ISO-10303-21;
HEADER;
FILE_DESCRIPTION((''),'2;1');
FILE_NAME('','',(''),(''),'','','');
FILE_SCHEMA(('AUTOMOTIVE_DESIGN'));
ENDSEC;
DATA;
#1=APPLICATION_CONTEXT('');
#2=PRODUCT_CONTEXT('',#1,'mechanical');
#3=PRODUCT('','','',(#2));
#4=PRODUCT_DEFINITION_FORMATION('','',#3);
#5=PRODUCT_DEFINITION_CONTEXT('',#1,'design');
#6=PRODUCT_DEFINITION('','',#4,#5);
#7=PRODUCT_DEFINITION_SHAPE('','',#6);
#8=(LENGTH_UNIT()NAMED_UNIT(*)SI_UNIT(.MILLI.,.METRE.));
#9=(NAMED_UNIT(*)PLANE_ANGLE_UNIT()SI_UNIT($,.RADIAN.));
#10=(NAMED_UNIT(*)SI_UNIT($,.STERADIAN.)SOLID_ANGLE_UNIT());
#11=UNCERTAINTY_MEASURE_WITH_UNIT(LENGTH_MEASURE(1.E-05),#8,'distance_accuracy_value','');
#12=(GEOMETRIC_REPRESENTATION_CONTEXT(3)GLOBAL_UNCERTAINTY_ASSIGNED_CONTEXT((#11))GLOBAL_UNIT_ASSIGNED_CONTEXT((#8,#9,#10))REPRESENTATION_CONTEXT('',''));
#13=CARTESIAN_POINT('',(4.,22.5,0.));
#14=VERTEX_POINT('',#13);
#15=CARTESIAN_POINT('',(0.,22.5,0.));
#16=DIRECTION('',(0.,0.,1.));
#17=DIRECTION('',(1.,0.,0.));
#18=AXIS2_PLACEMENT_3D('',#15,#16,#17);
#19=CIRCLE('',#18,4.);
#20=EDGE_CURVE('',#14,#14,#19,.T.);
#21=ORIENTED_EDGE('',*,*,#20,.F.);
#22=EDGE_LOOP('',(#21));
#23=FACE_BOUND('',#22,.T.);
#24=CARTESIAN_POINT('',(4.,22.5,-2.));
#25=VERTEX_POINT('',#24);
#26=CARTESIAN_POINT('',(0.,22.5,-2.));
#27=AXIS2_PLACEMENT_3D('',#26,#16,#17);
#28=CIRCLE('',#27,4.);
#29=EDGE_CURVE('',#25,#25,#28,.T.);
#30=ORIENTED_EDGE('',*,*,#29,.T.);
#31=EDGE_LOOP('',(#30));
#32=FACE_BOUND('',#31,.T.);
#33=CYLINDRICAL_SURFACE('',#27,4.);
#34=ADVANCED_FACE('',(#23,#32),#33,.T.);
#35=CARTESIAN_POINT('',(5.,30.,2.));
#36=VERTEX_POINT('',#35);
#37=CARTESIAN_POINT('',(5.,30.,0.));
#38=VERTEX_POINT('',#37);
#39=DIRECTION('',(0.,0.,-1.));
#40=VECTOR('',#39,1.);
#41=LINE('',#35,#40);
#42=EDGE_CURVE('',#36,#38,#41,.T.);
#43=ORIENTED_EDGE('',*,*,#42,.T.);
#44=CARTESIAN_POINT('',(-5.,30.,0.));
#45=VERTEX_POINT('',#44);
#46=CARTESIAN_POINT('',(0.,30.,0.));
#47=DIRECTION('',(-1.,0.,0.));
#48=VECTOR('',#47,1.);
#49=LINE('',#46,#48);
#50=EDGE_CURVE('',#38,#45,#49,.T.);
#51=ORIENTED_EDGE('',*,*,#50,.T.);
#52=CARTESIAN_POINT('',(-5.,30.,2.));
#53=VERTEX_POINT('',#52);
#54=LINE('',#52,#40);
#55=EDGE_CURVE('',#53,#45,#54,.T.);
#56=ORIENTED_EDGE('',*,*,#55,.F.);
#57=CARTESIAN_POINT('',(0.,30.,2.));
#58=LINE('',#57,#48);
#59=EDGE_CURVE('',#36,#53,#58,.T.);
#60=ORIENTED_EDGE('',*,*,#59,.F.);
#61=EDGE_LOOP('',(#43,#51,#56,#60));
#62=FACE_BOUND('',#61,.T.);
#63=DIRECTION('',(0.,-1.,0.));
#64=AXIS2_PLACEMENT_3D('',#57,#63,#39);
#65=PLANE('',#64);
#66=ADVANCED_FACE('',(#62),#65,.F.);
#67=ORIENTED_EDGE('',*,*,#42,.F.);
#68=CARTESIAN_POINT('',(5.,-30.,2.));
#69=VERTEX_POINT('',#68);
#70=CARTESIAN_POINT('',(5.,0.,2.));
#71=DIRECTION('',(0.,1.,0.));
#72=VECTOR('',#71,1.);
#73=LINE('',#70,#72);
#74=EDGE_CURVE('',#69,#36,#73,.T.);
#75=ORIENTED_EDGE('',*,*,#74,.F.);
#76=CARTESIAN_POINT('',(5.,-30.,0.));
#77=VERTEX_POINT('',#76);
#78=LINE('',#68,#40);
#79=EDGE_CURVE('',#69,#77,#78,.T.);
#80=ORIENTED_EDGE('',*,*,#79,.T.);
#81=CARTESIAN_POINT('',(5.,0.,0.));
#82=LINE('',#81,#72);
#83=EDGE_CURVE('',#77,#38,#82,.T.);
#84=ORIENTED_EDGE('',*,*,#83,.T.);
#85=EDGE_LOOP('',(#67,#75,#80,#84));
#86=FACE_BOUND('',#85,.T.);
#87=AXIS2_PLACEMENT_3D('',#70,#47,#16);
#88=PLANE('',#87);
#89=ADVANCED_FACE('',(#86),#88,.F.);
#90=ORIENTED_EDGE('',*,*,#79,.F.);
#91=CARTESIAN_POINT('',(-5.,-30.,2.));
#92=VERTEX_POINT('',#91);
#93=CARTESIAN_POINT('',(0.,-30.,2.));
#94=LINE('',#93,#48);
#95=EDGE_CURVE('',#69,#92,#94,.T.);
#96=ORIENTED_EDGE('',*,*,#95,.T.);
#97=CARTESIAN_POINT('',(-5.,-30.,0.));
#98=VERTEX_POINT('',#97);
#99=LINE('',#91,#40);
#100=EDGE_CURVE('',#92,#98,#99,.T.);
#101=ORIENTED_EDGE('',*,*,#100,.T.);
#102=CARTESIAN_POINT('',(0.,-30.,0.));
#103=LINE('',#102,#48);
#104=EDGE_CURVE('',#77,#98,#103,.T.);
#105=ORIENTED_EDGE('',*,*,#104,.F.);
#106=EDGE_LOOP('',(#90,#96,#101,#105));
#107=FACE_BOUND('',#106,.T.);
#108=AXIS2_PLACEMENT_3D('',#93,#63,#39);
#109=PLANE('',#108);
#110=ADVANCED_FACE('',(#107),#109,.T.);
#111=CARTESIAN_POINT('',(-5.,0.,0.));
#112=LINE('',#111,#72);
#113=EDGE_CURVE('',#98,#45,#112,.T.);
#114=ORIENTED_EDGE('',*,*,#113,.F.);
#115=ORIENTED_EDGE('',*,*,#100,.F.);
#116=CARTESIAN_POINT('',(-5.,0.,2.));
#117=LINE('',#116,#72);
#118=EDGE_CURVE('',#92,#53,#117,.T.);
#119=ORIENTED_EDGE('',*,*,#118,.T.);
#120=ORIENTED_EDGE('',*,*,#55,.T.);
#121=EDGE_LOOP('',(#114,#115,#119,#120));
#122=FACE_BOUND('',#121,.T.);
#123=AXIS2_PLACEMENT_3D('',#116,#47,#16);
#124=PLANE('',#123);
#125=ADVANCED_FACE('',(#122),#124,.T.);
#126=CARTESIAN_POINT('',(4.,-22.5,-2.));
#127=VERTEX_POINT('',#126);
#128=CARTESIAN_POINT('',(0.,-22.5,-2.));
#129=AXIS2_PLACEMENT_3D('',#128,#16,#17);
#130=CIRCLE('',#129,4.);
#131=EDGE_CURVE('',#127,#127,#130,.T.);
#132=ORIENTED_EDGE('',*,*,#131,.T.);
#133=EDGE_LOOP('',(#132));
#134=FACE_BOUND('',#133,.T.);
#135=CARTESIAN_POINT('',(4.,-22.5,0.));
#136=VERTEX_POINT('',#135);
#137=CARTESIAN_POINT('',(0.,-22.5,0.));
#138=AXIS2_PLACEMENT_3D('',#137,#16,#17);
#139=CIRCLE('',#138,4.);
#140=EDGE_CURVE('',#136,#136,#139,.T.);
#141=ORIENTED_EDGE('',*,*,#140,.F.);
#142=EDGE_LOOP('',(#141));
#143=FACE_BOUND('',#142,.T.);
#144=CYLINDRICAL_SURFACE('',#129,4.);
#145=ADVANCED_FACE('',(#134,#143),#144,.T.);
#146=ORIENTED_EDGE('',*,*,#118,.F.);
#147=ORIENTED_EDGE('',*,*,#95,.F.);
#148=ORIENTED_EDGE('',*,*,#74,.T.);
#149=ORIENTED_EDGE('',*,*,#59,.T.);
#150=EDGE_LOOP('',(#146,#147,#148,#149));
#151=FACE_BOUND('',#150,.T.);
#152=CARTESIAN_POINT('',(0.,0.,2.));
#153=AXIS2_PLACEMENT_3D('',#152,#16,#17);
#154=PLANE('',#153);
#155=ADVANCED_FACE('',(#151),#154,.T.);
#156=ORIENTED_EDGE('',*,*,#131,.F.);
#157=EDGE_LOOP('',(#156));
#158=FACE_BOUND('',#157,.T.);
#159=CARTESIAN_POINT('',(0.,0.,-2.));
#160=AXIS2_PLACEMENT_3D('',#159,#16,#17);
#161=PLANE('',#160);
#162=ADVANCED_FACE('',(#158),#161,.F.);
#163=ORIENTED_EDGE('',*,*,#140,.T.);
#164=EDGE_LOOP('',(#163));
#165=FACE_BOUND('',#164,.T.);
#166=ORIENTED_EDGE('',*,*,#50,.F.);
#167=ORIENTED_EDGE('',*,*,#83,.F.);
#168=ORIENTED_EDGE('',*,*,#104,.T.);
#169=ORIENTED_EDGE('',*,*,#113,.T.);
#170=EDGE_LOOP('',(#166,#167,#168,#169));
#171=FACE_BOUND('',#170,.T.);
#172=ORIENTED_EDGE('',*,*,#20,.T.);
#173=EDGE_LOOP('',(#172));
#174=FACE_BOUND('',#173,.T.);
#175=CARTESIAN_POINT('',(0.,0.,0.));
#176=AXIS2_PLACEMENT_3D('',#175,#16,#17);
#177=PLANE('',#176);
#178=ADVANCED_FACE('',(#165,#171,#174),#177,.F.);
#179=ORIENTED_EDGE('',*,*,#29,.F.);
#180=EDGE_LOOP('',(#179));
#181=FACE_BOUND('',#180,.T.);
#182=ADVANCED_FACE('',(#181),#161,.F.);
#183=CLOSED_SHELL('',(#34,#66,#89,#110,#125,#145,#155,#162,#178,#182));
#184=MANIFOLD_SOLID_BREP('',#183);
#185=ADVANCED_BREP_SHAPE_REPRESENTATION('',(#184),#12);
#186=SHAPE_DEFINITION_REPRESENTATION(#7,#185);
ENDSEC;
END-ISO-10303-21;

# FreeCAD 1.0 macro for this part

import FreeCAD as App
import Part
import Sketcher

V = App.Vector
Q = App.Units.Quantity

doc = App.newDocument("Part")
body = doc.addObject("PartDesign::Body", "Body")

# Sketch on XY plane
sketch1 = body.newObject("Sketcher::SketchObject", "Sketch")
sketch1.AttachmentSupport = (doc.getObject("XY_Plane"), [""])
sketch1.MapMode = "FlatFace"
sketch1.addGeometry([
    Part.LineSegment(V(-5, 30, 0), V(-5, -30, 0)),
    Part.LineSegment(V(-5, -30, 0), V(5, -30, 0)),
    Part.LineSegment(V(5, -30, 0), V(5, 30, 0)),
    Part.LineSegment(V(5, 30, 0), V(-5, 30, 0)),
], False)
sketch1.addConstraint([
    Sketcher.Constraint("Coincident", 0, 2, 1, 1),
    Sketcher.Constraint("Coincident", 1, 2, 2, 1),
    Sketcher.Constraint("Coincident", 2, 2, 3, 1),
    Sketcher.Constraint("Coincident", 3, 2, 0, 1),
    Sketcher.Constraint("Vertical", 0),
    Sketcher.Constraint("Horizontal", 1),
    Sketcher.Constraint("Vertical", 2),
    Sketcher.Constraint("Horizontal", 3),
    Sketcher.Constraint("Symmetric", 0, 2, 2, 2, -1, 1),
    Sketcher.Constraint("DistanceX", 1, 1, 1, 2, Q("10 mm")),
    Sketcher.Constraint("DistanceY", 0, 2, 0, 1, Q("60 mm")),
])
pad1 = body.newObject("PartDesign::Pad", "Pad")
pad1.Profile = sketch1
pad1.Length = 2

# Sketch on XY plane
sketch2 = body.newObject("Sketcher::SketchObject", "Sketch001")
sketch2.AttachmentSupport = (doc.getObject("XY_Plane"), [""])
sketch2.MapMode = "FlatFace"
sketch2.addGeometry([
    Part.Circle(V(0, 22.5, 0), V(0, 0, 1), 4),
    Part.Circle(V(0, -22.5, 0), V(0, 0, 1), 4),
], False)
sketch2.addConstraint([
    Sketcher.Constraint("Equal", 0, 1),
    Sketcher.Constraint("Symmetric", 0, 3, 1, 3, -1, 1),
    Sketcher.Constraint("PointOnObject", 0, 3, -2),
    Sketcher.Constraint("Diameter", 0, Q("8 mm")),
    Sketcher.Constraint("DistanceY", 1, 3, 0, 3, Q("45 mm")),
])
pad2 = body.newObject("PartDesign::Pad", "Pad001")
pad2.Profile = sketch2
pad2.Length = 2
pad2.Reversed = True

doc.recompute()
